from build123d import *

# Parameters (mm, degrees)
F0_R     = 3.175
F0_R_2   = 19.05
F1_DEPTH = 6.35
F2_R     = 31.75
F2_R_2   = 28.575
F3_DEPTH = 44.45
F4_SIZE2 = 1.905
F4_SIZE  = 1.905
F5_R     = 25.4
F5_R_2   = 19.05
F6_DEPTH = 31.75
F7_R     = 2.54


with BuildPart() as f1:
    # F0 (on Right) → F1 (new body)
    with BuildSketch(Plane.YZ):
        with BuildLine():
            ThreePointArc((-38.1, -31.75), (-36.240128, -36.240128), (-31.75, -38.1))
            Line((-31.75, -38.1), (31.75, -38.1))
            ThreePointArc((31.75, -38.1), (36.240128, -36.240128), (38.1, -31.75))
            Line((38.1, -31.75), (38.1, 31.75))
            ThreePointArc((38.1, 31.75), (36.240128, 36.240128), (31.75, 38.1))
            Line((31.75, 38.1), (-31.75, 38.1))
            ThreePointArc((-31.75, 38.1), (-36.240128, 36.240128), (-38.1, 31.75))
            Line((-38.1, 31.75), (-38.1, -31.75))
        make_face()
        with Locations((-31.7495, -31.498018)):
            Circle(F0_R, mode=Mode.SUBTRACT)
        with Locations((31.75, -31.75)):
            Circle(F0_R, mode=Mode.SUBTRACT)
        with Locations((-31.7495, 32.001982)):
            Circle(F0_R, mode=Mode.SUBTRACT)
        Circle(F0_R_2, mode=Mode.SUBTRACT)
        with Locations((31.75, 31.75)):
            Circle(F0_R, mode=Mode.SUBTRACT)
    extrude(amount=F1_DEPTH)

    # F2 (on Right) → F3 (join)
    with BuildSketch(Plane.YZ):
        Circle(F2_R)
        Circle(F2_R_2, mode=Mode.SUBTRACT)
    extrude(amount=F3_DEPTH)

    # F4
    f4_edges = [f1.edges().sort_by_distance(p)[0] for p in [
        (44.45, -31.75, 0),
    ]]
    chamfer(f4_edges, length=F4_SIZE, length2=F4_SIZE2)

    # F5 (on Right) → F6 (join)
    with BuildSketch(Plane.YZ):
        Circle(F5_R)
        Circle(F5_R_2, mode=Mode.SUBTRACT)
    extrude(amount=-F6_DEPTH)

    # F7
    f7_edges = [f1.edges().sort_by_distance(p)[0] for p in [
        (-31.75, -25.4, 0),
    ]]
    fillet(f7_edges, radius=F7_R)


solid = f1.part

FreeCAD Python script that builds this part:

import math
import FreeCAD as App
import Part
import Sketcher
from FreeCAD import Vector
Q = App.Units.Quantity


def edges_at(feature, points):
    """Names of the edges that pass closest to the given points."""
    edges = feature.Shape.Edges
    near = lambda p: min(range(len(edges)), key=lambda i: edges[i].distToShape(Part.Vertex(*p))[0])
    return sorted({f"Edge{near(p) + 1}" for p in points})

doc = App.newDocument("Part")
body = doc.addObject("PartDesign::Body", "Body")

# Sketch on YZ plane
sketch1 = body.newObject("Sketcher::SketchObject", "Sketch")
sketch1.AttachmentSupport = (doc.getObject("YZ_Plane"), [""])
sketch1.MapMode = "FlatFace"
sketch1.addGeometry(Part.ArcOfCircle(Part.Circle(Vector(-31.7, -31.7, 0), Vector(0, 0, 1), 6.4), math.radians(-180), math.radians(-90)), False)
sketch1.addGeometry(Part.LineSegment(Vector(-31.8, -38.1, 0), Vector(31.8, -38.1, 0)), False)
sketch1.addGeometry(Part.ArcOfCircle(Part.Circle(Vector(31.7, -31.7, 0), Vector(0, 0, 1), 6.4), math.radians(-90), math.radians(0)), False)
sketch1.addGeometry(Part.LineSegment(Vector(38.1, -31.8, 0), Vector(38.1, 31.8, 0)), False)
sketch1.addGeometry(Part.ArcOfCircle(Part.Circle(Vector(31.7, 31.7, 0), Vector(0, 0, 1), 6.4), math.radians(0), math.radians(90)), False)
sketch1.addGeometry(Part.LineSegment(Vector(31.8, 38.1, 0), Vector(-31.8, 38.1, 0)), False)
sketch1.addGeometry(Part.ArcOfCircle(Part.Circle(Vector(-31.7, 31.7, 0), Vector(0, 0, 1), 6.4), math.radians(90), math.radians(180)), False)
sketch1.addGeometry(Part.LineSegment(Vector(-38.1, 31.8, 0), Vector(-38.1, -31.8, 0)), False)
sketch1.addGeometry(Part.Circle(Vector(-31.7, -31.5, 0), Vector(0, 0, 1), 3.2), False)
sketch1.addGeometry(Part.Circle(Vector(0, 0, 0), Vector(0, 0, 1), 19.1), False)
sketch1.addGeometry(Part.Circle(Vector(31.8, -31.8, 0), Vector(0, 0, 1), 3.2), False)
sketch1.addGeometry(Part.Circle(Vector(-31.7, 32, 0), Vector(0, 0, 1), 3.2), False)
sketch1.addGeometry(Part.Circle(Vector(31.8, 31.8, 0), Vector(0, 0, 1), 3.2), False)
sketch1.addConstraint(Sketcher.Constraint("Tangent", 0, 2, 1, 1))
sketch1.addConstraint(Sketcher.Constraint("Tangent", 1, 2, 2, 1))
sketch1.addConstraint(Sketcher.Constraint("Tangent", 2, 2, 3, 1))
sketch1.addConstraint(Sketcher.Constraint("Tangent", 3, 2, 4, 1))
sketch1.addConstraint(Sketcher.Constraint("Tangent", 4, 2, 5, 1))
sketch1.addConstraint(Sketcher.Constraint("Tangent", 5, 2, 6, 1))
sketch1.addConstraint(Sketcher.Constraint("Tangent", 6, 2, 7, 1))
sketch1.addConstraint(Sketcher.Constraint("Tangent", 7, 2, 0, 1))
sketch1.addConstraint(Sketcher.Constraint("Horizontal", 1))
sketch1.addConstraint(Sketcher.Constraint("Vertical", 3))
sketch1.addConstraint(Sketcher.Constraint("Horizontal", 5))
sketch1.addConstraint(Sketcher.Constraint("Vertical", 7))
sketch1.addConstraint(Sketcher.Constraint("Coincident", 9, 3, -1, 1))
sketch1.addConstraint(Sketcher.Constraint("Coincident", 10, 3, 2, 3))
sketch1.addConstraint(Sketcher.Constraint("Coincident", 12, 3, 4, 3))
sketch1.addConstraint(Sketcher.Constraint("Equal", 0, 2))
sketch1.addConstraint(Sketcher.Constraint("Equal", 2, 4))
sketch1.addConstraint(Sketcher.Constraint("Equal", 4, 6))
sketch1.addConstraint(Sketcher.Constraint("Equal", 8, 10))
sketch1.addConstraint(Sketcher.Constraint("Equal", 10, 11))
sketch1.addConstraint(Sketcher.Constraint("Equal", 11, 12))
sketch1.addConstraint(Sketcher.Constraint("Symmetric", 0, 3, 4, 3, -1, 1))
sketch1.addConstraint(Sketcher.Constraint("Vertical", 8, 3, 11, 3))
sketch1.addConstraint(Sketcher.Constraint("Equal", 5, 3))
sketch1.addConstraint(Sketcher.Constraint("Diameter", 9, Q("1.5 in")))
sketch1.addConstraint(Sketcher.Constraint("Diameter", 8, Q("0.25 in")))
sketch1.addConstraint(Sketcher.Constraint("Radius", 0, Q("0.25 in")))
sketch1.addConstraint(Sketcher.Constraint("DistanceX", 1, 1, 1, 2, Q("2.5 in")))
sketch1.addConstraint(Sketcher.Constraint("DistanceY", 8, 3, 11, 3, Q("2.5 in")))
sketch1.addConstraint(Sketcher.Constraint("DistanceX", 8, 3, -1, 1, 31.7495))
sketch1.addConstraint(Sketcher.Constraint("DistanceY", -1, 1, 11, 3, 32.001982))
pad1 = body.newObject("PartDesign::Pad", "Pad")
pad1.Profile = sketch1
pad1.Length = Q("0.25 in")

# Sketch on YZ plane
sketch2 = body.newObject("Sketcher::SketchObject", "Sketch001")
sketch2.AttachmentSupport = (doc.getObject("YZ_Plane"), [""])
sketch2.MapMode = "FlatFace"
sketch2.addGeometry(Part.Circle(Vector(0, 0, 0), Vector(0, 0, 1), 32), False)
sketch2.addGeometry(Part.Circle(Vector(0, 0, 0), Vector(0, 0, 1), 29), False)
sketch2.addConstraint(Sketcher.Constraint("Coincident", 0, 3, -1, 1))
sketch2.addConstraint(Sketcher.Constraint("Coincident", 1, 3, -1, 1))
sketch2.addConstraint(Sketcher.Constraint("Diameter", 0, Q("2.5 in")))
sketch2.addConstraint(Sketcher.Constraint("Diameter", 1, Q("2.25 in")))
pad2 = body.newObject("PartDesign::Pad", "Pad001")
pad2.Profile = sketch2
pad2.Length = Q("1.75 in")
doc.recompute()

chamfer = body.newObject("PartDesign::Chamfer", "Chamfer")
chamfer.Base = (pad2, edges_at(pad2, [(44.45, -31.75, 0)]))
chamfer.ChamferType = "Two distances"
chamfer.Size = Q("0.075 in")
chamfer.Size2 = Q("0.075 in")

# Sketch on YZ plane
sketch3 = body.newObject("Sketcher::SketchObject", "Sketch002")
sketch3.AttachmentSupport = (doc.getObject("YZ_Plane"), [""])
sketch3.MapMode = "FlatFace"
sketch3.addGeometry(Part.Circle(Vector(0, 0, 0), Vector(0, 0, 1), 25), False)
sketch3.addGeometry(Part.Circle(Vector(0, 0, 0), Vector(0, 0, 1), 19), False)
sketch3.addConstraint(Sketcher.Constraint("Coincident", 0, 3, -1, 1))
sketch3.addConstraint(Sketcher.Constraint("Coincident", 1, 3, -1, 1))
sketch3.addConstraint(Sketcher.Constraint("Diameter", 0, Q("2 in")))
sketch3.addConstraint(Sketcher.Constraint("Diameter", 1, Q("1.5 in")))
pad3 = body.newObject("PartDesign::Pad", "Pad002")
pad3.Profile = sketch3
pad3.Length = Q("1.25 in")
pad3.Reversed = True
doc.recompute()

fillet = body.newObject("PartDesign::Fillet", "Fillet")
fillet.Base = (pad3, edges_at(pad3, [(-31.75, -25.4, 0)]))
fillet.Radius = Q("0.1 in")

doc.recompute()
